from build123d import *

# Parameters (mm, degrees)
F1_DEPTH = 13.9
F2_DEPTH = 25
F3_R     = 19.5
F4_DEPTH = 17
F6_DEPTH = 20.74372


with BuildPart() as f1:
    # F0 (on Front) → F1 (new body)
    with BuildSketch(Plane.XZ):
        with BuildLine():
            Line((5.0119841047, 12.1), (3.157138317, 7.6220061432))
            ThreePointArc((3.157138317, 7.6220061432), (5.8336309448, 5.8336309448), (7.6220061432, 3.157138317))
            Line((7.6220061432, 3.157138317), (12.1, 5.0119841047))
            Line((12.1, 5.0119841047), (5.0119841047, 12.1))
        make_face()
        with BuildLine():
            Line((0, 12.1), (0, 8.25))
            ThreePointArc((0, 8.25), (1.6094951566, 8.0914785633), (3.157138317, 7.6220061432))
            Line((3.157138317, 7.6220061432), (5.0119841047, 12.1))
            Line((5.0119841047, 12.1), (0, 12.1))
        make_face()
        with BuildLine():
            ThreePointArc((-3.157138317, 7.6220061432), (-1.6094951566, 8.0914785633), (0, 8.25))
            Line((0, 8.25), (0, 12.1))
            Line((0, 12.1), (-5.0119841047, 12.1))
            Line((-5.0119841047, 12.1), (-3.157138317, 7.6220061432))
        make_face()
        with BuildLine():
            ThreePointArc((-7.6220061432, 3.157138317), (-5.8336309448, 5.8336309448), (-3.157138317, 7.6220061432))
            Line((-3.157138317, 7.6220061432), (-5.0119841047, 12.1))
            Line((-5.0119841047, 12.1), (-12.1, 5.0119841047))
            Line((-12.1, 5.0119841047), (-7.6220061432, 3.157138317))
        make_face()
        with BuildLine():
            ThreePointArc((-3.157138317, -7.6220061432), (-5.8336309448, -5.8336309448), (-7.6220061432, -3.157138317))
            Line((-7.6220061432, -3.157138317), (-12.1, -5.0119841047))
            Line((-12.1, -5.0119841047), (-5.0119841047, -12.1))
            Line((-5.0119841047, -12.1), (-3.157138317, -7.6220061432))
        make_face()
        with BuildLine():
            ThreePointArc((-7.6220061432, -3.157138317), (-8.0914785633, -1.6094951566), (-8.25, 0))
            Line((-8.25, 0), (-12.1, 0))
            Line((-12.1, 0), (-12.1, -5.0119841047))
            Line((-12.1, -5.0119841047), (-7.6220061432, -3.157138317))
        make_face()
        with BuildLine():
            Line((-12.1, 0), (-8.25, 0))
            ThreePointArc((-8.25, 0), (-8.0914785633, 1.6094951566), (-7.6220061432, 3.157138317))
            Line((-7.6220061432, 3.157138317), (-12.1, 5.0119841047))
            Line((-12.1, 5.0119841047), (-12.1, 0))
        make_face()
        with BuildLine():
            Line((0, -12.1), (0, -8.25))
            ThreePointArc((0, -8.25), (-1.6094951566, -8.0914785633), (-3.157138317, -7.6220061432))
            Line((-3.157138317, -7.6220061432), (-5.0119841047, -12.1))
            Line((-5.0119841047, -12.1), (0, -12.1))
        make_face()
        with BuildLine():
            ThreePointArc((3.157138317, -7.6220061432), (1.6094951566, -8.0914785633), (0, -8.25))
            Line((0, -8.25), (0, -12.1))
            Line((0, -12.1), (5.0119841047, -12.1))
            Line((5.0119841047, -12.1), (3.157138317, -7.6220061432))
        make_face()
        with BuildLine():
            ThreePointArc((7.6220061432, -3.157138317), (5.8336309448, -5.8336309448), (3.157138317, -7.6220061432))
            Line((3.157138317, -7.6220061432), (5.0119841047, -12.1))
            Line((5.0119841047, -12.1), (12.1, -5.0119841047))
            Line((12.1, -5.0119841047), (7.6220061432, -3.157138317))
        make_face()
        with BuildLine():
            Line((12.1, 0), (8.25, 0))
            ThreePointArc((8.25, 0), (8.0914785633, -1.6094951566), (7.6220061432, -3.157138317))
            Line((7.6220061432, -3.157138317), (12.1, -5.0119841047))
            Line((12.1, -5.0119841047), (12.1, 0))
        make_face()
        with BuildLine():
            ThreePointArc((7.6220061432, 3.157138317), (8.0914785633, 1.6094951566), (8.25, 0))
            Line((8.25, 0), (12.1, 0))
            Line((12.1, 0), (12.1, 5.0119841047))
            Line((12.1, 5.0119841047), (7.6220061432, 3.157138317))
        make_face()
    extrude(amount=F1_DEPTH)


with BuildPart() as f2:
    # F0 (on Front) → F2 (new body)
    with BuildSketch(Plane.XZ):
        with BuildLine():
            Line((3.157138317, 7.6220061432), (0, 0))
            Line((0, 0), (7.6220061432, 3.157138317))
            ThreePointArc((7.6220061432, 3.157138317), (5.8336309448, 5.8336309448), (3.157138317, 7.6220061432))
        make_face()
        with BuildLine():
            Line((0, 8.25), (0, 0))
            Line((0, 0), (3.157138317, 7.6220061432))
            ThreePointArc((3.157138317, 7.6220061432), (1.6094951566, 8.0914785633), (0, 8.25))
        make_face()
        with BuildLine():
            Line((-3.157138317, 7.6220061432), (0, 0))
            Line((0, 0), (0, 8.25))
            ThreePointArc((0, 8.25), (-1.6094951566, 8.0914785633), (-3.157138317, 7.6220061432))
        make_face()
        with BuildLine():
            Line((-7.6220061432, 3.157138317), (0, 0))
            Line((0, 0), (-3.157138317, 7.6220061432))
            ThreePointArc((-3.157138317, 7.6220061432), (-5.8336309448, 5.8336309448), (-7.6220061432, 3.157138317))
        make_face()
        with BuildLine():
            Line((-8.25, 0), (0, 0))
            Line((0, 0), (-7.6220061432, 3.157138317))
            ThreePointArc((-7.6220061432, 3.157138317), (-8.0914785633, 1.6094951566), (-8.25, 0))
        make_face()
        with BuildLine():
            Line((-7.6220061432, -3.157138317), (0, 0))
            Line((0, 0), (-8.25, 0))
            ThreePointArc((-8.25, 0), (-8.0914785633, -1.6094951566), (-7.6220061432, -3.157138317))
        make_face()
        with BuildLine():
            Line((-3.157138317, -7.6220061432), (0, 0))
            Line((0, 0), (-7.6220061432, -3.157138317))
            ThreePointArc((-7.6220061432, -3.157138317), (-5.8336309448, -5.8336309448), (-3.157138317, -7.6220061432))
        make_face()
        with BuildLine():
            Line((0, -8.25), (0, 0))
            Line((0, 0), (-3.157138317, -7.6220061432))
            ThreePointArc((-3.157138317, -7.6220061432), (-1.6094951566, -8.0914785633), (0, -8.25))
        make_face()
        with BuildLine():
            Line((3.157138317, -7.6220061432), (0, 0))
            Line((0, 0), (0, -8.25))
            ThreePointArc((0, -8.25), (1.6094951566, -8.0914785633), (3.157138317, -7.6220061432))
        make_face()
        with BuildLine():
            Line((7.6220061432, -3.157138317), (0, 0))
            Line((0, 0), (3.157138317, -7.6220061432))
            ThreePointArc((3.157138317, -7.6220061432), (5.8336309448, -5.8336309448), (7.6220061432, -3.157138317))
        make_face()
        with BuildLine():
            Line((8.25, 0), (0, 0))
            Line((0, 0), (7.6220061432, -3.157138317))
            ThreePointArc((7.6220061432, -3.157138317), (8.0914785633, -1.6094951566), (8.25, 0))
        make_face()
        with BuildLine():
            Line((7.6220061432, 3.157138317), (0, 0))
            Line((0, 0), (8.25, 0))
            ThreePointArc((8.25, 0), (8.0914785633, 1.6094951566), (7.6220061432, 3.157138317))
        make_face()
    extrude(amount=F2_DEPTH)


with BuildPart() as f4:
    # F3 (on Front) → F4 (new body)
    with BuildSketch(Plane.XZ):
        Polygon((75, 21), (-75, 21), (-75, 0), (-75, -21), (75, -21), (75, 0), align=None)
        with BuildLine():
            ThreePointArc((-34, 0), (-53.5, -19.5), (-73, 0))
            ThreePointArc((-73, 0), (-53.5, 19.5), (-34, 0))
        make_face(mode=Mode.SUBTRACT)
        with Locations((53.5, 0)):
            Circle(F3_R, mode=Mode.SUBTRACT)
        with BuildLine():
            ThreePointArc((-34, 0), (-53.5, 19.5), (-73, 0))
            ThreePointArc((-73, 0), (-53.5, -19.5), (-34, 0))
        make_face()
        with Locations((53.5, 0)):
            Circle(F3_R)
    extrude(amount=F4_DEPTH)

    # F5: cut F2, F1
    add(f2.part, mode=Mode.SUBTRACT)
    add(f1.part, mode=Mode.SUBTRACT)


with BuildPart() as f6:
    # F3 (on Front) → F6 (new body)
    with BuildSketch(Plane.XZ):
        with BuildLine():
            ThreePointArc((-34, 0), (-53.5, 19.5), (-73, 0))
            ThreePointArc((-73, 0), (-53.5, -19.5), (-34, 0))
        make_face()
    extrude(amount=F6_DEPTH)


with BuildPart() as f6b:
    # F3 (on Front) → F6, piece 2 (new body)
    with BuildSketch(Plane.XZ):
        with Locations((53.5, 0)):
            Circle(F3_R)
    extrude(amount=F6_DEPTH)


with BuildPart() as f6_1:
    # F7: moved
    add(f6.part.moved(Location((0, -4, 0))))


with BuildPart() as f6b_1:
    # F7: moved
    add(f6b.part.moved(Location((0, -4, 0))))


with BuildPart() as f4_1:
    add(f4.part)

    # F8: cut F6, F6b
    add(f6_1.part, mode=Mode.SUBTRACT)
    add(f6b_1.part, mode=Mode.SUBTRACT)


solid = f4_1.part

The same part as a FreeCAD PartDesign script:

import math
import FreeCAD as App
import Part
import Sketcher

doc = App.newDocument("Part")
params = doc.addObject("Spreadsheet::Sheet", "Params")
for row, (alias, value) in enumerate([
    ("sketch1_radius", "8.25 mm"),
    ("pad1_length", "13.9 mm"),
    ("sketch2_radius", "8.25 mm"),
    ("pad2_length", "25 mm"),
    ("sketch3_width", "150 mm"),
    ("sketch3_height", "42 mm"),
    ("pad3_length", "17 mm"),
    ("sketch4_diameter", "39 mm"),
    ("pad4_length", "20.74372 mm"),
    ("sketch5_diameter", "39 mm"),
    ("pad5_length", "20.74372 mm"),
], start=1):
    params.set(f"A{row}", alias)
    params.set(f"B{row}", "=" + value)
    params.setAlias(f"B{row}", alias)

body = doc.addObject("PartDesign::Body", "Body")

# Sketch on XZ plane
sketch1 = body.newObject("Sketcher::SketchObject", "Sketch")
sketch1.AttachmentSupport = (doc.getObject("XZ_Plane"), [""])
sketch1.MapMode = "FlatFace"
sketch1.addGeometry(Part.LineSegment(App.Vector(12.1, 5, 0), App.Vector(5, 12.1, 0)), False)
sketch1.addGeometry(Part.LineSegment(App.Vector(5, 12.1, 0), App.Vector(-5, 12.1, 0)), False)
sketch1.addGeometry(Part.LineSegment(App.Vector(-5, 12.1, 0), App.Vector(-12.1, 5, 0)), False)
sketch1.addGeometry(Part.LineSegment(App.Vector(-12.1, 5, 0), App.Vector(-12.1, -5, 0)), False)
sketch1.addGeometry(Part.LineSegment(App.Vector(-12.1, -5, 0), App.Vector(-5, -12.1, 0)), False)
sketch1.addGeometry(Part.LineSegment(App.Vector(-5, -12.1, 0), App.Vector(5, -12.1, 0)), False)
sketch1.addGeometry(Part.LineSegment(App.Vector(5, -12.1, 0), App.Vector(12.1, -5, 0)), False)
sketch1.addGeometry(Part.LineSegment(App.Vector(12.1, -5, 0), App.Vector(12.1, 5, 0)), False)
sketch1.addGeometry(Part.ArcOfCircle(Part.Circle(App.Vector(0, 0, 0), App.Vector(0, 0, 1), 8.2), math.radians(23), math.radians(67)), False)
sketch1.addGeometry(Part.ArcOfCircle(Part.Circle(App.Vector(0, 0, 0), App.Vector(0, 0, 1), 8.3), math.radians(0), math.radians(22)), False)
sketch1.addGeometry(Part.ArcOfCircle(Part.Circle(App.Vector(0, 0, 0), App.Vector(0, 0, 1), 8.3), math.radians(-22), math.radians(0)), False)
sketch1.addGeometry(Part.ArcOfCircle(Part.Circle(App.Vector(0, 0, 0), App.Vector(0, 0, 1), 8.2), math.radians(-67), math.radians(-23)), False)
sketch1.addGeometry(Part.ArcOfCircle(Part.Circle(App.Vector(0, 0, 0), App.Vector(0, 0, 1), 8.3), math.radians(-90), math.radians(-68)), False)
sketch1.addGeometry(Part.ArcOfCircle(Part.Circle(App.Vector(0, 0, 0), App.Vector(0, 0, 1), 8.3), math.radians(-112), math.radians(-90)), False)
sketch1.addGeometry(Part.ArcOfCircle(Part.Circle(App.Vector(0, 0, 0), App.Vector(0, 0, 1), 8.2), math.radians(-157), math.radians(-113)), False)
sketch1.addGeometry(Part.ArcOfCircle(Part.Circle(App.Vector(0, 0, 0), App.Vector(0, 0, 1), 8.3), math.radians(180), math.radians(202)), False)
sketch1.addGeometry(Part.ArcOfCircle(Part.Circle(App.Vector(0, 0, 0), App.Vector(0, 0, 1), 8.3), math.radians(158), math.radians(180)), False)
sketch1.addGeometry(Part.ArcOfCircle(Part.Circle(App.Vector(0, 0, 0), App.Vector(0, 0, 1), 8.2), math.radians(113), math.radians(157)), False)
sketch1.addGeometry(Part.ArcOfCircle(Part.Circle(App.Vector(0, 0, 0), App.Vector(0, 0, 1), 8.3), math.radians(90), math.radians(112)), False)
sketch1.addGeometry(Part.ArcOfCircle(Part.Circle(App.Vector(0, 0, 0), App.Vector(0, 0, 1), 8.3), math.radians(68), math.radians(90)), False)
sketch1.addConstraint(Sketcher.Constraint("Coincident", 0, 2, 1, 1))
sketch1.addConstraint(Sketcher.Constraint("Coincident", 1, 2, 2, 1))
sketch1.addConstraint(Sketcher.Constraint("Coincident", 2, 2, 3, 1))
sketch1.addConstraint(Sketcher.Constraint("Coincident", 3, 2, 4, 1))
sketch1.addConstraint(Sketcher.Constraint("Coincident", 4, 2, 5, 1))
sketch1.addConstraint(Sketcher.Constraint("Coincident", 5, 2, 6, 1))
sketch1.addConstraint(Sketcher.Constraint("Coincident", 6, 2, 7, 1))
sketch1.addConstraint(Sketcher.Constraint("Coincident", 7, 2, 0, 1))
sketch1.addConstraint(Sketcher.Constraint("Tangent", 8, 1, 9, 2))
sketch1.addConstraint(Sketcher.Constraint("Tangent", 9, 1, 10, 2))
sketch1.addConstraint(Sketcher.Constraint("Tangent", 10, 1, 11, 2))
sketch1.addConstraint(Sketcher.Constraint("Tangent", 11, 1, 12, 2))
sketch1.addConstraint(Sketcher.Constraint("Tangent", 12, 1, 13, 2))
sketch1.addConstraint(Sketcher.Constraint("Tangent", 13, 1, 14, 2))
sketch1.addConstraint(Sketcher.Constraint("Tangent", 14, 1, 15, 2))
sketch1.addConstraint(Sketcher.Constraint("Tangent", 15, 1, 16, 2))
sketch1.addConstraint(Sketcher.Constraint("Tangent", 16, 1, 17, 2))
sketch1.addConstraint(Sketcher.Constraint("Tangent", 17, 1, 18, 2))
sketch1.addConstraint(Sketcher.Constraint("Tangent", 18, 1, 19, 2))
sketch1.addConstraint(Sketcher.Constraint("Tangent", 19, 1, 8, 2))
sketch1.addConstraint(Sketcher.Constraint("Horizontal", 1))
sketch1.addConstraint(Sketcher.Constraint("Vertical", 3))
sketch1.addConstraint(Sketcher.Constraint("Horizontal", 5))
sketch1.addConstraint(Sketcher.Constraint("Vertical", 7))
sketch1.addConstraint(Sketcher.Constraint("Coincident", 8, 3, -1, 1))
sketch1.addConstraint(Sketcher.Constraint("Coincident", 10, 3, -1, 1))
sketch1.addConstraint(Sketcher.Constraint("Coincident", 12, 3, -1, 1))
sketch1.addConstraint(Sketcher.Constraint("Coincident", 14, 3, -1, 1))
sketch1.addConstraint(Sketcher.Constraint("Coincident", 16, 3, -1, 1))
sketch1.addConstraint(Sketcher.Constraint("Equal", 16, 17))
sketch1.addConstraint(Sketcher.Constraint("Symmetric", 0, 2, 4, 2, -1, 1))
sketch1.addConstraint(Sketcher.Constraint("Symmetric", 2, 2, 6, 2, -1, 1))
sketch1.addConstraint(Sketcher.Constraint("PointOnObject", 9, 1, -1))
sketch1.addConstraint(Sketcher.Constraint("PointOnObject", 12, 1, -2))
sketch1.addConstraint(Sketcher.Constraint("PointOnObject", 15, 1, -1))
sketch1.addConstraint(Sketcher.Constraint("PointOnObject", 18, 1, -2))
sketch1.addConstraint(Sketcher.Constraint("Perpendicular", 0, 2))
sketch1.addConstraint(Sketcher.Constraint("Perpendicular", 2, 4))
sketch1.addConstraint(Sketcher.Constraint("Perpendicular", 4, 6))
sketch1.addConstraint(Sketcher.Constraint("Horizontal", 3, 2, 6, 2))
sketch1.addConstraint(Sketcher.Constraint("Horizontal", 11, 1, 13, 1))
sketch1.addConstraint(Sketcher.Constraint("Horizontal", 10, 1, 14, 1))
sketch1.addConstraint(Sketcher.Constraint("Horizontal", 8, 1, 16, 1))
sketch1.addConstraint(Sketcher.Constraint("Horizontal", 17, 1, 19, 1))
sketch1.addConstraint(Sketcher.Constraint("Vertical", 1, 2, 4, 2))
sketch1.addConstraint(Sketcher.Constraint("Vertical", 8, 1, 10, 1))
sketch1.addConstraint(Sketcher.Constraint("Vertical", 13, 1, 17, 1))
sketch1.addConstraint(Sketcher.Constraint("Equal", 5, 3))
sketch1.addConstraint(Sketcher.Constraint("Radius", 8, 8.25))
sketch1.addConstraint(Sketcher.Constraint("DistanceY", -1, 1, 0, 2, 12.1))
sketch1.addConstraint(Sketcher.Constraint("DistanceX", 1, 2, 1, 1, 10.023968))
sketch1.addConstraint(Sketcher.Constraint("DistanceY", -1, 1, 8, 1, 3.157138))
sketch1.addConstraint(Sketcher.Constraint("DistanceX", -1, 1, 11, 1, 3.157138))
sketch1.setExpression("Constraints[48]", "Params.sketch1_radius")
pad1 = body.newObject("PartDesign::Pad", "Pad")
pad1.Profile = sketch1
pad1.setExpression("Length", "Params.pad1_length")
body2 = doc.addObject("PartDesign::Body", "Body001")

# Sketch on XZ plane
sketch2 = body2.newObject("Sketcher::SketchObject", "Sketch001")
sketch2.AttachmentSupport = (doc.getObject("XZ_Plane001"), [""])
sketch2.MapMode = "FlatFace"
sketch2.addGeometry(Part.ArcOfCircle(Part.Circle(App.Vector(0, 0, 0), App.Vector(0, 0, 1), 8.2), math.radians(23), math.radians(67)), False)
sketch2.addGeometry(Part.ArcOfCircle(Part.Circle(App.Vector(0, 0, 0), App.Vector(0, 0, 1), 8.3), math.radians(68), math.radians(90)), False)
sketch2.addGeometry(Part.ArcOfCircle(Part.Circle(App.Vector(0, 0, 0), App.Vector(0, 0, 1), 8.3), math.radians(90), math.radians(112)), False)
sketch2.addGeometry(Part.ArcOfCircle(Part.Circle(App.Vector(0, 0, 0), App.Vector(0, 0, 1), 8.2), math.radians(113), math.radians(157)), False)
sketch2.addGeometry(Part.ArcOfCircle(Part.Circle(App.Vector(0, 0, 0), App.Vector(0, 0, 1), 8.3), math.radians(158), math.radians(180)), False)
sketch2.addGeometry(Part.ArcOfCircle(Part.Circle(App.Vector(0, 0, 0), App.Vector(0, 0, 1), 8.3), math.radians(180), math.radians(202)), False)
sketch2.addGeometry(Part.ArcOfCircle(Part.Circle(App.Vector(0, 0, 0), App.Vector(0, 0, 1), 8.2), math.radians(-157), math.radians(-113)), False)
sketch2.addGeometry(Part.ArcOfCircle(Part.Circle(App.Vector(0, 0, 0), App.Vector(0, 0, 1), 8.3), math.radians(-112), math.radians(-90)), False)
sketch2.addGeometry(Part.ArcOfCircle(Part.Circle(App.Vector(0, 0, 0), App.Vector(0, 0, 1), 8.3), math.radians(-90), math.radians(-68)), False)
sketch2.addGeometry(Part.ArcOfCircle(Part.Circle(App.Vector(0, 0, 0), App.Vector(0, 0, 1), 8.2), math.radians(-67), math.radians(-23)), False)
sketch2.addGeometry(Part.ArcOfCircle(Part.Circle(App.Vector(0, 0, 0), App.Vector(0, 0, 1), 8.3), math.radians(-22), math.radians(0)), False)
sketch2.addGeometry(Part.ArcOfCircle(Part.Circle(App.Vector(0, 0, 0), App.Vector(0, 0, 1), 8.3), math.radians(0), math.radians(22)), False)
sketch2.addConstraint(Sketcher.Constraint("Tangent", 0, 2, 1, 1))
sketch2.addConstraint(Sketcher.Constraint("Tangent", 1, 2, 2, 1))
sketch2.addConstraint(Sketcher.Constraint("Tangent", 2, 2, 3, 1))
sketch2.addConstraint(Sketcher.Constraint("Tangent", 3, 2, 4, 1))
sketch2.addConstraint(Sketcher.Constraint("Tangent", 4, 2, 5, 1))
sketch2.addConstraint(Sketcher.Constraint("Tangent", 5, 2, 6, 1))
sketch2.addConstraint(Sketcher.Constraint("Tangent", 6, 2, 7, 1))
sketch2.addConstraint(Sketcher.Constraint("Tangent", 7, 2, 8, 1))
sketch2.addConstraint(Sketcher.Constraint("Tangent", 8, 2, 9, 1))
sketch2.addConstraint(Sketcher.Constraint("Tangent", 9, 2, 10, 1))
sketch2.addConstraint(Sketcher.Constraint("Tangent", 10, 2, 11, 1))
sketch2.addConstraint(Sketcher.Constraint("Tangent", 11, 2, 0, 1))
sketch2.addConstraint(Sketcher.Constraint("Coincident", 0, 3, -1, 1))
sketch2.addConstraint(Sketcher.Constraint("Coincident", 2, 3, -1, 1))
sketch2.addConstraint(Sketcher.Constraint("Coincident", 4, 3, -1, 1))
sketch2.addConstraint(Sketcher.Constraint("Coincident", 6, 3, -1, 1))
sketch2.addConstraint(Sketcher.Constraint("Coincident", 8, 3, -1, 1))
sketch2.addConstraint(Sketcher.Constraint("Equal", 8, 9))
sketch2.addConstraint(Sketcher.Constraint("PointOnObject", 1, 2, -2))
sketch2.addConstraint(Sketcher.Constraint("PointOnObject", 4, 2, -1))
sketch2.addConstraint(Sketcher.Constraint("PointOnObject", 7, 2, -2))
sketch2.addConstraint(Sketcher.Constraint("PointOnObject", 10, 2, -1))
sketch2.addConstraint(Sketcher.Constraint("Horizontal", 0, 2, 2, 2))
sketch2.addConstraint(Sketcher.Constraint("Horizontal", 6, 2, 8, 2))
sketch2.addConstraint(Sketcher.Constraint("Horizontal", 5, 2, 9, 2))
sketch2.addConstraint(Sketcher.Constraint("Horizontal", 3, 2, 11, 2))
sketch2.addConstraint(Sketcher.Constraint("Vertical", 3, 2, 5, 2))
sketch2.addConstraint(Sketcher.Constraint("Vertical", 2, 2, 6, 2))
sketch2.addConstraint(Sketcher.Constraint("Radius", 0, 8.25))
sketch2.addConstraint(Sketcher.Constraint("DistanceX", -1, 1, 0, 2, 3.157138))
sketch2.addConstraint(Sketcher.Constraint("DistanceY", -1, 1, 3, 2, 3.157138))
sketch2.setExpression("Constraints[28]", "Params.sketch2_radius")
pad2 = body2.newObject("PartDesign::Pad", "Pad001")
pad2.Profile = sketch2
pad2.setExpression("Length", "Params.pad2_length")
body3 = doc.addObject("PartDesign::Body", "Body002")

# Sketch on XZ plane
sketch3 = body3.newObject("Sketcher::SketchObject", "Sketch002")
sketch3.AttachmentSupport = (doc.getObject("XZ_Plane002"), [""])
sketch3.MapMode = "FlatFace"
sketch3.addGeometry(Part.LineSegment(App.Vector(75, 21, 0), App.Vector(-75, 21, 0)), False)
sketch3.addGeometry(Part.LineSegment(App.Vector(-75, 21, 0), App.Vector(-75, -21, 0)), False)
sketch3.addGeometry(Part.LineSegment(App.Vector(-75, -21, 0), App.Vector(75, -21, 0)), False)
sketch3.addGeometry(Part.LineSegment(App.Vector(75, -21, 0), App.Vector(75, 21, 0)), False)
sketch3.addConstraint(Sketcher.Constraint("Coincident", 0, 2, 1, 1))
sketch3.addConstraint(Sketcher.Constraint("Coincident", 1, 2, 2, 1))
sketch3.addConstraint(Sketcher.Constraint("Coincident", 2, 2, 3, 1))
sketch3.addConstraint(Sketcher.Constraint("Coincident", 3, 2, 0, 1))
sketch3.addConstraint(Sketcher.Constraint("Horizontal", 0))
sketch3.addConstraint(Sketcher.Constraint("Vertical", 1))
sketch3.addConstraint(Sketcher.Constraint("Horizontal", 2))
sketch3.addConstraint(Sketcher.Constraint("Vertical", 3))
sketch3.addConstraint(Sketcher.Constraint("Symmetric", 0, 2, 2, 2, -1, 1))
sketch3.addConstraint(Sketcher.Constraint("DistanceX", 0, 2, 0, 1, 150.0))
sketch3.addConstraint(Sketcher.Constraint("DistanceY", 1, 2, 1, 1, 42.0))
sketch3.setExpression("Constraints[9]", "Params.sketch3_width")
sketch3.setExpression("Constraints[10]", "Params.sketch3_height")
pad3 = body3.newObject("PartDesign::Pad", "Pad002")
pad3.Profile = sketch3
pad3.setExpression("Length", "Params.pad3_length")
doc.recompute()

boolean = body3.newObject("PartDesign::Boolean", "Boolean")
boolean.Type = "Cut"
boolean.addObjects([body2])
doc.recompute()

boolean2 = body3.newObject("PartDesign::Boolean", "Boolean001")
boolean2.Type = "Cut"
boolean2.addObjects([body])
body4 = doc.addObject("PartDesign::Body", "Body003")

# Sketch on XZ plane
sketch4 = body4.newObject("Sketcher::SketchObject", "Sketch003")
sketch4.AttachmentSupport = (doc.getObject("XZ_Plane003"), [""])
sketch4.MapMode = "FlatFace"
sketch4.addGeometry(Part.Circle(App.Vector(-54, 0, 0), App.Vector(0, 0, 1), 20), False)
sketch4.addConstraint(Sketcher.Constraint("PointOnObject", 0, 3, -1))
sketch4.addConstraint(Sketcher.Constraint("Diameter", 0, 39.0))
sketch4.addConstraint(Sketcher.Constraint("DistanceX", 0, 3, -1, 1, 53.5))
sketch4.setExpression("Constraints[1]", "Params.sketch4_diameter")
pad4 = body4.newObject("PartDesign::Pad", "Pad003")
pad4.Profile = sketch4
pad4.setExpression("Length", "Params.pad4_length")
body5 = doc.addObject("PartDesign::Body", "Body004")

# Sketch on XZ plane
sketch5 = body5.newObject("Sketcher::SketchObject", "Sketch004")
sketch5.AttachmentSupport = (doc.getObject("XZ_Plane004"), [""])
sketch5.MapMode = "FlatFace"
sketch5.addGeometry(Part.Circle(App.Vector(54, 0, 0), App.Vector(0, 0, 1), 20), False)
sketch5.addConstraint(Sketcher.Constraint("PointOnObject", 0, 3, -1))
sketch5.addConstraint(Sketcher.Constraint("Diameter", 0, 39.0))
sketch5.addConstraint(Sketcher.Constraint("DistanceX", -1, 1, 0, 3, 53.5))
sketch5.setExpression("Constraints[1]", "Params.sketch5_diameter")
pad5 = body5.newObject("PartDesign::Pad", "Pad004")
pad5.Profile = sketch5
pad5.setExpression("Length", "Params.pad5_length")
body6 = doc.addObject("PartDesign::Body", "Body005")
doc.recompute()

body4.Placement = App.Placement(App.Vector(0, -4, 0), App.Rotation(App.Vector(0, 0, 1), 0))
boolean3 = body6.newObject("PartDesign::Boolean", "Boolean002")
boolean3.Type = "Fuse"
boolean3.addObjects([body4])
body7 = doc.addObject("PartDesign::Body", "Body006")
doc.recompute()

body5.Placement = App.Placement(App.Vector(0, -4, 0), App.Rotation(App.Vector(0, 0, 1), 0))
boolean4 = body7.newObject("PartDesign::Boolean", "Boolean003")
boolean4.Type = "Fuse"
boolean4.addObjects([body5])
doc.recompute()

boolean5 = body3.newObject("PartDesign::Boolean", "Boolean004")
boolean5.Type = "Cut"
boolean5.addObjects([body6])
doc.recompute()

boolean6 = body3.newObject("PartDesign::Boolean", "Boolean005")
boolean6.Type = "Cut"
boolean6.addObjects([body7])

doc.recompute()
